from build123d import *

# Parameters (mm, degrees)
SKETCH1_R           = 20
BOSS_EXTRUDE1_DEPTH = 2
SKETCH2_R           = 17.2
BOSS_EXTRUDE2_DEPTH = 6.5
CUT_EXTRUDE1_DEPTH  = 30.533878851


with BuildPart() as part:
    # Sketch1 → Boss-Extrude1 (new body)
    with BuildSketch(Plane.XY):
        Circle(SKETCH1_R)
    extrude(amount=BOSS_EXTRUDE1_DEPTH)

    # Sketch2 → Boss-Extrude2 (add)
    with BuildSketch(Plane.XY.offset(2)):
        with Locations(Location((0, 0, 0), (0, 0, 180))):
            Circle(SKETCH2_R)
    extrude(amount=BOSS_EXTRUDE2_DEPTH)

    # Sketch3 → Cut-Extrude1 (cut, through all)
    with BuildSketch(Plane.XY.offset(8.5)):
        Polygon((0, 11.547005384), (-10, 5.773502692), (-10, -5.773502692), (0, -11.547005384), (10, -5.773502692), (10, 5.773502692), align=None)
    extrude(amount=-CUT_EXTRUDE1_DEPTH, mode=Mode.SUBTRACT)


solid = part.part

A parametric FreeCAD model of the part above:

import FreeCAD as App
import Part
import Sketcher

V = App.Vector
Q = App.Units.Quantity


def add_polygon(sketch, points):
    """Adds a closed chain of lines whose ends are joined by coincident constraints."""
    first, n = sketch.GeometryCount, len(points)
    for a, b in zip(points, points[1:] + points[:1]):
        sketch.addGeometry(Part.LineSegment(App.Vector(*a, 0), App.Vector(*b, 0)), False)
    for i in range(n):
        sketch.addConstraint(Sketcher.Constraint("Coincident", first + i, 2, first + (i + 1) % n, 1))

doc = App.newDocument("Part")
body = doc.addObject("PartDesign::Body", "Body")

# Sketch on XY plane
sketch1 = body.newObject("Sketcher::SketchObject", "Sketch")
sketch1.AttachmentSupport = (doc.getObject("XY_Plane"), [""])
sketch1.MapMode = "FlatFace"
sketch1.addGeometry(Part.Circle(V(0, 0, 0), V(0, 0, 1), 20), False)
sketch1.addConstraint(Sketcher.Constraint("Coincident", 0, 3, -1, 1))
sketch1.addConstraint(Sketcher.Constraint("Diameter", 0, 40.0))
pad1 = body.newObject("PartDesign::Pad", "Pad")
pad1.Profile = sketch1
pad1.Length = 2

# Sketch on XY plane
sketch2 = body.newObject("Sketcher::SketchObject", "Sketch001")
sketch2.AttachmentSupport = (doc.getObject("XY_Plane"), [""])
sketch2.MapMode = "FlatFace"
sketch2.AttachmentOffset = App.Placement(V(0, 0, 2), App.Rotation())
sketch2.addGeometry(Part.Circle(V(0, 0, 0), V(0, 0, 1), 17), False)
sketch2.addConstraint(Sketcher.Constraint("Coincident", 0, 3, -1, 1))
sketch2.addConstraint(Sketcher.Constraint("Diameter", 0, 34.4))
pad2 = body.newObject("PartDesign::Pad", "Pad001")
pad2.Profile = sketch2
pad2.Length = 6.5

# Sketch on XY plane
sketch3 = body.newObject("Sketcher::SketchObject", "Sketch002")
sketch3.AttachmentSupport = (doc.getObject("XY_Plane"), [""])
sketch3.MapMode = "FlatFace"
sketch3.AttachmentOffset = App.Placement(V(0, 0, 8.5), App.Rotation())
add_polygon(sketch3, [(0, 12), (-10, 6), (-10, -6), (0, -12), (10, -6), (10, 6)])  # lines 0-5
sketch3.addConstraint(Sketcher.Constraint("Vertical", 1))
sketch3.addConstraint(Sketcher.Constraint("Vertical", 4))
sketch3.addConstraint(Sketcher.Constraint("Symmetric", 0, 2, 3, 2, -1, 1))
sketch3.addConstraint(Sketcher.Constraint("Symmetric", 2, 2, 5, 2, -1, 1))
sketch3.addConstraint(Sketcher.Constraint("PointOnObject", 2, 2, -2))
sketch3.addConstraint(Sketcher.Constraint("Parallel", 2, 5))
sketch3.addConstraint(Sketcher.Constraint("Horizontal", 1, 2, 3, 2))
sketch3.addConstraint(Sketcher.Constraint("Angle", 0, Q("-150 deg")))
sketch3.addConstraint(Sketcher.Constraint("DistanceX", 0, 2, -1, 1, 10.0))
sketch3.addConstraint(Sketcher.Constraint("DistanceY", 1, 2, 1, 1, 11.547005))
pocket1 = body.newObject("PartDesign::Pocket", "Pocket")
pocket1.Profile = sketch3
pocket1.Type = "ThroughAll"

doc.recompute()
